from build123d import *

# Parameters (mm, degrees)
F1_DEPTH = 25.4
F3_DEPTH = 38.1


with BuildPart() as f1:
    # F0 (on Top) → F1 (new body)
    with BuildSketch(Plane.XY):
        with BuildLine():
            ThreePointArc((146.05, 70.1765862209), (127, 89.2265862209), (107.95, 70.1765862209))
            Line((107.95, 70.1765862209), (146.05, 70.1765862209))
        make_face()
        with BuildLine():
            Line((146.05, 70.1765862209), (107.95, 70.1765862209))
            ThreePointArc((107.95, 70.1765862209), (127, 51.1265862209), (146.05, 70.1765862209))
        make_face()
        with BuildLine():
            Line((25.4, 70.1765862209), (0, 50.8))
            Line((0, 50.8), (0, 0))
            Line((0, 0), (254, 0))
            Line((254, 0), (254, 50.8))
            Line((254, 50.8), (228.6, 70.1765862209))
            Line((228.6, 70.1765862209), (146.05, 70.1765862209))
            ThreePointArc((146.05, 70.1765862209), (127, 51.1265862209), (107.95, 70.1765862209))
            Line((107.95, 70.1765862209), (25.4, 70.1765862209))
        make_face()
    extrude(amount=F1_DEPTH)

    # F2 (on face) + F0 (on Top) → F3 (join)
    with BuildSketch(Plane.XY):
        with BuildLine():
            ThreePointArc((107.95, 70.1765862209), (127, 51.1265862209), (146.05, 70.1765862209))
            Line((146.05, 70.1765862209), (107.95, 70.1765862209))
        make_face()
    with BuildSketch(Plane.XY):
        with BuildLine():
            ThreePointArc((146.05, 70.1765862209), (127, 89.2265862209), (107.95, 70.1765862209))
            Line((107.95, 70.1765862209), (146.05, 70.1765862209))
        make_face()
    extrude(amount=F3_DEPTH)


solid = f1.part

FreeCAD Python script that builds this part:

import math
import FreeCAD as App
import Part
import Sketcher
from FreeCAD import Vector
Q = App.Units.Quantity

doc = App.newDocument("Part")
body = doc.addObject("PartDesign::Body", "Body")

# Sketch on XY plane
sketch1 = doc.addObject("Sketcher::SketchObject", "Sketch")
body.addObject(sketch1)
sketch1.AttachmentSupport = (doc.XY_Plane, [""])
sketch1.MapMode = "FlatFace"
sketch1.addGeometry([
    Part.ArcOfCircle(Part.Circle(Vector(127, 70, 0), Vector(0, 0, 1), 19), math.radians(0), math.radians(180)),  # 0
    Part.LineSegment(Vector(108, 70, 0), Vector(25, 70, 0)),  # 1
    Part.LineSegment(Vector(25, 70, 0), Vector(0, 51, 0)),  # 2
    Part.LineSegment(Vector(0, 51, 0), Vector(0, 0, 0)),  # 3
    Part.LineSegment(Vector(0, 0, 0), Vector(254, 0, 0)),  # 4
    Part.LineSegment(Vector(254, 0, 0), Vector(254, 51, 0)),  # 5
    Part.LineSegment(Vector(254, 51, 0), Vector(229, 70, 0)),  # 6
    Part.LineSegment(Vector(229, 70, 0), Vector(146, 70, 0)),  # 7
], False)
sketch1.addConstraint([
    Sketcher.Constraint("Coincident", 0, 2, 1, 1),
    Sketcher.Constraint("Coincident", 1, 2, 2, 1),
    Sketcher.Constraint("Coincident", 2, 2, 3, 1),
    Sketcher.Constraint("Coincident", 3, 2, 4, 1),
    Sketcher.Constraint("Coincident", 4, 2, 5, 1),
    Sketcher.Constraint("Coincident", 5, 2, 6, 1),
    Sketcher.Constraint("Coincident", 6, 2, 7, 1),
    Sketcher.Constraint("Coincident", 7, 2, 0, 1),
    Sketcher.Constraint("Horizontal", 1),
    Sketcher.Constraint("Vertical", 3),
    Sketcher.Constraint("Horizontal", 4),
    Sketcher.Constraint("Vertical", 5),
    Sketcher.Constraint("Horizontal", 7),
    Sketcher.Constraint("Coincident", 3, 2, -1, 1),
    Sketcher.Constraint("Horizontal", 2, 2, 5, 2),
    Sketcher.Constraint("Horizontal", 1, 2, 6, 2),
    Sketcher.Constraint("Equal", 1, 7),
    Sketcher.Constraint("Equal", 2, 6),
    Sketcher.Constraint("DistanceX", 4, 1, 4, 2, Q("10 in")),
    Sketcher.Constraint("DistanceY", 3, 2, 3, 1, Q("2 in")),
    Sketcher.Constraint("Radius", 0, Q("0.75 in")),
    Sketcher.Constraint("DistanceX", -1, 1, 1, 2, Q("1 in")),
    Sketcher.Constraint("Distance", 2, Q("31.94702 mm")),
    Sketcher.Constraint("DistanceY", -1, 1, 0, 3, Q("70.176586 mm")),
])
pad1 = doc.addObject("PartDesign::Pad", "Pad")
body.addObject(pad1)
pad1.Profile = sketch1
pad1.Length = Q("1 in")

# Sketch on XY plane
sketch2 = doc.addObject("Sketcher::SketchObject", "Sketch001")
body.addObject(sketch2)
sketch2.AttachmentSupport = (doc.XY_Plane, [""])
sketch2.MapMode = "FlatFace"
sketch2.addGeometry(Part.Circle(Vector(127, 70, 0), Vector(0, 0, 1), 19), False)
sketch2.addConstraint([
    Sketcher.Constraint("Diameter", 0, Q("1.5 in")),
    Sketcher.Constraint("DistanceX", -1, 1, 0, 3, Q("5 in")),
    Sketcher.Constraint("DistanceY", -1, 1, 0, 3, Q("70.176586 mm")),
])
pad2 = doc.addObject("PartDesign::Pad", "Pad001")
body.addObject(pad2)
pad2.Profile = sketch2
pad2.Length = Q("1.5 in")

doc.recompute()
